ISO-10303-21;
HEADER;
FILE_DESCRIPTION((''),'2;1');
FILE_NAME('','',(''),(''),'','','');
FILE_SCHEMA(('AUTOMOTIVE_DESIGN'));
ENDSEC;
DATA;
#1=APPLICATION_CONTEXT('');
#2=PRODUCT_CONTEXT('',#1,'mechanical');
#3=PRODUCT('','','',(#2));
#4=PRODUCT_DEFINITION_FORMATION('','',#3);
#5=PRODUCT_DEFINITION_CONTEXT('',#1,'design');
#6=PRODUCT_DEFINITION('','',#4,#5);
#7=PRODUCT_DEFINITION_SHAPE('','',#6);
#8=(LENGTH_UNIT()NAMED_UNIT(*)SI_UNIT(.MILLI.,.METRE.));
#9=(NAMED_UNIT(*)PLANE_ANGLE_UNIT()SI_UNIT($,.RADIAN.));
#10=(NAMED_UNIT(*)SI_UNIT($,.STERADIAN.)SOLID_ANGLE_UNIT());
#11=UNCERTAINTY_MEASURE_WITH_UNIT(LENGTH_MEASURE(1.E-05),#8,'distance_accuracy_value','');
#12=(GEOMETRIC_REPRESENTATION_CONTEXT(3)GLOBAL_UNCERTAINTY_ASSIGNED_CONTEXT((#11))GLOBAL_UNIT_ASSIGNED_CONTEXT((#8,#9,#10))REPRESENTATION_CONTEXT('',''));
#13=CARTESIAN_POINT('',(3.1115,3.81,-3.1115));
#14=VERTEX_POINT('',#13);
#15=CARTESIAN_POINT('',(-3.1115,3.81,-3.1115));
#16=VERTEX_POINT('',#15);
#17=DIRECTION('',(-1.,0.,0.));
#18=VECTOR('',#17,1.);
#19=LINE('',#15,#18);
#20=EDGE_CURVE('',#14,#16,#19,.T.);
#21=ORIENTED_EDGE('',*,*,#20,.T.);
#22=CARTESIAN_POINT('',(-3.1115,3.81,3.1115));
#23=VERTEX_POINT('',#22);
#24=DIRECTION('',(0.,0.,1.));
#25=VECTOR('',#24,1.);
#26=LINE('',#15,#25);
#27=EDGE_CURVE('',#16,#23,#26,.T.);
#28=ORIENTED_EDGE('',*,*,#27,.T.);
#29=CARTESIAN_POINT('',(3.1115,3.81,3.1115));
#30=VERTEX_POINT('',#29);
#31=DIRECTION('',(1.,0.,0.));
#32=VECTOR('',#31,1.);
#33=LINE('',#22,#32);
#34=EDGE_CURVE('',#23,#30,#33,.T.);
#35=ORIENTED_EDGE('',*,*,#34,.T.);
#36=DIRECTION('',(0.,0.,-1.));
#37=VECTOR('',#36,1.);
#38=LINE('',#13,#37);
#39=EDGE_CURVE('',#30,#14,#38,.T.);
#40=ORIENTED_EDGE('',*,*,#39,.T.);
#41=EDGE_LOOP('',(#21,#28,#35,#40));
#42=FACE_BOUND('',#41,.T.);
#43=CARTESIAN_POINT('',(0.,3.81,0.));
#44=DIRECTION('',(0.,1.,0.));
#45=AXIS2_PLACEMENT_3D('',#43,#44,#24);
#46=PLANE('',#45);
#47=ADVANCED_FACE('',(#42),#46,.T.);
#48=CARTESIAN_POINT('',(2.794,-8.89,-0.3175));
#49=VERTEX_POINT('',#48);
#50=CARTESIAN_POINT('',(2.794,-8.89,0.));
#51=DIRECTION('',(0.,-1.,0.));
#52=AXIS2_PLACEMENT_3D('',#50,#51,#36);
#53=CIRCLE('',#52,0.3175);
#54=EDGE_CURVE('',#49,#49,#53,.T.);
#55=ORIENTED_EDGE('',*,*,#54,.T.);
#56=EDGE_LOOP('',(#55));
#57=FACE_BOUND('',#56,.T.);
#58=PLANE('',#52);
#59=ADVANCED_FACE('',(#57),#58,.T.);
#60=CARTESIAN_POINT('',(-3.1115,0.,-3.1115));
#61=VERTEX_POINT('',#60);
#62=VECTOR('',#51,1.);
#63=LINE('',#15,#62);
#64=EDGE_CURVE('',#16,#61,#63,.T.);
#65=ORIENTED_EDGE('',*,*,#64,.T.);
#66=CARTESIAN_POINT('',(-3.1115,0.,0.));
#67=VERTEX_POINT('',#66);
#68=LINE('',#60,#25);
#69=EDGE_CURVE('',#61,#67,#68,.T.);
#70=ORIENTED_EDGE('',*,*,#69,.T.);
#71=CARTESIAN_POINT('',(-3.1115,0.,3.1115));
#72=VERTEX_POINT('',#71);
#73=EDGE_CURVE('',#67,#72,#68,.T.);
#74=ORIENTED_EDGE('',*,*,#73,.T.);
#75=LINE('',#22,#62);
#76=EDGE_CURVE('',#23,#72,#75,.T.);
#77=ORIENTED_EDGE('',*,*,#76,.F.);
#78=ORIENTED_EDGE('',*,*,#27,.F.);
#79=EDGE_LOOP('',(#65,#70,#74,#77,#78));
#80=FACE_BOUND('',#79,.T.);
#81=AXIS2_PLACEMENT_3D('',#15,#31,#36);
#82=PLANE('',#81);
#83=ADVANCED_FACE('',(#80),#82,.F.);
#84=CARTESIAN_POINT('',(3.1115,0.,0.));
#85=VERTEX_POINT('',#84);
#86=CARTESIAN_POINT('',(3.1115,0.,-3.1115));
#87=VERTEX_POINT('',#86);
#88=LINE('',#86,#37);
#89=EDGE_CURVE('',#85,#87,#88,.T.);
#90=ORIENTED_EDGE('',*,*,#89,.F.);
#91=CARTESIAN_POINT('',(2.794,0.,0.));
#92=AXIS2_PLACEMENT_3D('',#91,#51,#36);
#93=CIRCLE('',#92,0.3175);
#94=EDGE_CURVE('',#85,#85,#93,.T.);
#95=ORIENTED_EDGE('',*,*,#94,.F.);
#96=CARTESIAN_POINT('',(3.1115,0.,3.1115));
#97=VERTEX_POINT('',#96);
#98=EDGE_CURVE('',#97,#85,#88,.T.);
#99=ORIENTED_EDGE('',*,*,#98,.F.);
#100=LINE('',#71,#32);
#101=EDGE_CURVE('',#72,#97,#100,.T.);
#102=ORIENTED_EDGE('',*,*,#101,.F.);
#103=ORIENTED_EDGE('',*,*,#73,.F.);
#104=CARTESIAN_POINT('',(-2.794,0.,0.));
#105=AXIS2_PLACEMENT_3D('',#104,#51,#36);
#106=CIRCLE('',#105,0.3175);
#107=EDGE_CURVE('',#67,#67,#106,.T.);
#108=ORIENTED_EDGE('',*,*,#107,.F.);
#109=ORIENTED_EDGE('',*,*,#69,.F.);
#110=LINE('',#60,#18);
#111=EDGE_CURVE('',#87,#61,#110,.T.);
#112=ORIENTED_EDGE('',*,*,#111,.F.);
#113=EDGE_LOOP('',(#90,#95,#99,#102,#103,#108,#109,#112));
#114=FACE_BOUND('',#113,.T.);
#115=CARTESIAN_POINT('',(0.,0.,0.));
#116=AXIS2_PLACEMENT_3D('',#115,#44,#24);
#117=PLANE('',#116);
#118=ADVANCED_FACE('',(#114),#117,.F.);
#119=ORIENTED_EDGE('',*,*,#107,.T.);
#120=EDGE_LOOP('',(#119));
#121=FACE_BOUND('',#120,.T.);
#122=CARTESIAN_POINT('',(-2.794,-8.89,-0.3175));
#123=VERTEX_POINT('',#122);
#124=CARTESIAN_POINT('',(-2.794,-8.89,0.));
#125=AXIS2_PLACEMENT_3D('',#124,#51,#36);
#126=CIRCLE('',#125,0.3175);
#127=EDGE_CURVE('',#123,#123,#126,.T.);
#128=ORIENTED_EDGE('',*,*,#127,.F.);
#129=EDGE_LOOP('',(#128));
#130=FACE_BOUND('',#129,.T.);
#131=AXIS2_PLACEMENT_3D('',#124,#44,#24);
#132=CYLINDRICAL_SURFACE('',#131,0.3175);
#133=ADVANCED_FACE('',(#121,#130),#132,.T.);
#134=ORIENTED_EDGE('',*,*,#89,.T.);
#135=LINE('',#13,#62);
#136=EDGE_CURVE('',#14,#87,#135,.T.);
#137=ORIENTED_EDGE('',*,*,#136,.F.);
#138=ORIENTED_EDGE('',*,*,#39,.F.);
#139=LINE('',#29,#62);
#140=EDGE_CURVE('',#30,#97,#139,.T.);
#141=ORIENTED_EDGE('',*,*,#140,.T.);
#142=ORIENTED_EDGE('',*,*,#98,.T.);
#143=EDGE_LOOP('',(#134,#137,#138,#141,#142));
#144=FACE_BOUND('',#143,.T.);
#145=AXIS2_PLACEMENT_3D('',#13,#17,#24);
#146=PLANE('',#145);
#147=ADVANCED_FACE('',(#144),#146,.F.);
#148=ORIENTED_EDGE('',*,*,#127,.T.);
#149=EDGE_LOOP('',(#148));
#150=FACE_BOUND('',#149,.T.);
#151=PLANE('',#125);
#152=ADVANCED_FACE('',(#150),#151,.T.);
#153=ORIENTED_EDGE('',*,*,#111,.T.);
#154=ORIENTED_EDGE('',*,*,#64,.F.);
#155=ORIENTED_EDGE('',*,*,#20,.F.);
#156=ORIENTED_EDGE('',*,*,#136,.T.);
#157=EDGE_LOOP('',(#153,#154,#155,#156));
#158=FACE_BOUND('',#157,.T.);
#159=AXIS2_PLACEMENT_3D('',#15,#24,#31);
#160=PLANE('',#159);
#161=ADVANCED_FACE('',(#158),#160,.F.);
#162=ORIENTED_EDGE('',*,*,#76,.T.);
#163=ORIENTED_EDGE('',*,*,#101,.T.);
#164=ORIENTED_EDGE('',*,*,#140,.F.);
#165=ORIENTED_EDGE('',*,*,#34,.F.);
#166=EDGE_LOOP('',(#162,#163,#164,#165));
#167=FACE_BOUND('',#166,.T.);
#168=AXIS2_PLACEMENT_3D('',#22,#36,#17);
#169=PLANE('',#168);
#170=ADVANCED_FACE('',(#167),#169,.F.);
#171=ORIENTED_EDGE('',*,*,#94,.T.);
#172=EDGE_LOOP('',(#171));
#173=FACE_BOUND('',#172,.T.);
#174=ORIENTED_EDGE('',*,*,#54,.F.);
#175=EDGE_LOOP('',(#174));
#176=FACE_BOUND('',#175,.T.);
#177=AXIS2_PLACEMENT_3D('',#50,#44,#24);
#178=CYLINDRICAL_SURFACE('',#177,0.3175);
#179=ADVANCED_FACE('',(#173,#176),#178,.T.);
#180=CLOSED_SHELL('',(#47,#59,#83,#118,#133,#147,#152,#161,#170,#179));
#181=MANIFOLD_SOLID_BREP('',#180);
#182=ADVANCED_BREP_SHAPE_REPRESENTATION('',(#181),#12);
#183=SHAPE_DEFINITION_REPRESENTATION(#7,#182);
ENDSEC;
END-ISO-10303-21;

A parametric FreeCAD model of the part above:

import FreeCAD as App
import Part
import Sketcher

V = App.Vector
Q = App.Units.Quantity

doc = App.newDocument("Part")
body = doc.addObject("PartDesign::Body", "Body")

# Sketch on XZ plane
sketch1 = body.newObject("Sketcher::SketchObject", "Sketch")
sketch1.AttachmentSupport = (doc.getObject("XZ_Plane"), [""])
sketch1.MapMode = "FlatFace"
sketch1.addGeometry([
    Part.LineSegment(V(-3.1115, -3.1115, 0), V(-3.1115, 3.1115, 0)),
    Part.LineSegment(V(-3.1115, 3.1115, 0), V(3.1115, 3.1115, 0)),
    Part.LineSegment(V(3.1115, 3.1115, 0), V(3.1115, -3.1115, 0)),
    Part.LineSegment(V(3.1115, -3.1115, 0), V(-3.1115, -3.1115, 0)),
], False)
sketch1.addConstraint([
    Sketcher.Constraint("Coincident", 0, 2, 1, 1),
    Sketcher.Constraint("Coincident", 1, 2, 2, 1),
    Sketcher.Constraint("Coincident", 2, 2, 3, 1),
    Sketcher.Constraint("Coincident", 3, 2, 0, 1),
    Sketcher.Constraint("Vertical", 0),
    Sketcher.Constraint("Horizontal", 1),
    Sketcher.Constraint("Vertical", 2),
    Sketcher.Constraint("Horizontal", 3),
    Sketcher.Constraint("Symmetric", 0, 2, 2, 2, -1, 1),
    Sketcher.Constraint("Equal", 3, 0),
    Sketcher.Constraint("DistanceX", 1, 1, 1, 2, Q("0.245 in")),
])
pad1 = body.newObject("PartDesign::Pad", "Pad")
pad1.Profile = sketch1
pad1.Length = Q("0.15 in")
pad1.Reversed = True

# Sketch on XZ plane
sketch2 = body.newObject("Sketcher::SketchObject", "Sketch001")
sketch2.AttachmentSupport = (doc.getObject("XZ_Plane"), [""])
sketch2.MapMode = "FlatFace"
sketch2.addGeometry([
    Part.Circle(V(-2.794, 0, 0), V(0, 0, 1), 0.3175),
    Part.Circle(V(2.794, 0, 0), V(0, 0, 1), 0.3175),
], False)
sketch2.addConstraint([
    Sketcher.Constraint("Equal", 0, 1),
    Sketcher.Constraint("Symmetric", 0, 3, 1, 3, -1, 1),
    Sketcher.Constraint("PointOnObject", 0, 3, -1),
    Sketcher.Constraint("Diameter", 0, Q("0.025 in")),
    Sketcher.Constraint("DistanceX", 0, 3, -1, 1, Q("0.11 in")),
])
pad2 = body.newObject("PartDesign::Pad", "Pad001")
pad2.Profile = sketch2
pad2.Length = Q("0.35 in")

doc.recompute()
